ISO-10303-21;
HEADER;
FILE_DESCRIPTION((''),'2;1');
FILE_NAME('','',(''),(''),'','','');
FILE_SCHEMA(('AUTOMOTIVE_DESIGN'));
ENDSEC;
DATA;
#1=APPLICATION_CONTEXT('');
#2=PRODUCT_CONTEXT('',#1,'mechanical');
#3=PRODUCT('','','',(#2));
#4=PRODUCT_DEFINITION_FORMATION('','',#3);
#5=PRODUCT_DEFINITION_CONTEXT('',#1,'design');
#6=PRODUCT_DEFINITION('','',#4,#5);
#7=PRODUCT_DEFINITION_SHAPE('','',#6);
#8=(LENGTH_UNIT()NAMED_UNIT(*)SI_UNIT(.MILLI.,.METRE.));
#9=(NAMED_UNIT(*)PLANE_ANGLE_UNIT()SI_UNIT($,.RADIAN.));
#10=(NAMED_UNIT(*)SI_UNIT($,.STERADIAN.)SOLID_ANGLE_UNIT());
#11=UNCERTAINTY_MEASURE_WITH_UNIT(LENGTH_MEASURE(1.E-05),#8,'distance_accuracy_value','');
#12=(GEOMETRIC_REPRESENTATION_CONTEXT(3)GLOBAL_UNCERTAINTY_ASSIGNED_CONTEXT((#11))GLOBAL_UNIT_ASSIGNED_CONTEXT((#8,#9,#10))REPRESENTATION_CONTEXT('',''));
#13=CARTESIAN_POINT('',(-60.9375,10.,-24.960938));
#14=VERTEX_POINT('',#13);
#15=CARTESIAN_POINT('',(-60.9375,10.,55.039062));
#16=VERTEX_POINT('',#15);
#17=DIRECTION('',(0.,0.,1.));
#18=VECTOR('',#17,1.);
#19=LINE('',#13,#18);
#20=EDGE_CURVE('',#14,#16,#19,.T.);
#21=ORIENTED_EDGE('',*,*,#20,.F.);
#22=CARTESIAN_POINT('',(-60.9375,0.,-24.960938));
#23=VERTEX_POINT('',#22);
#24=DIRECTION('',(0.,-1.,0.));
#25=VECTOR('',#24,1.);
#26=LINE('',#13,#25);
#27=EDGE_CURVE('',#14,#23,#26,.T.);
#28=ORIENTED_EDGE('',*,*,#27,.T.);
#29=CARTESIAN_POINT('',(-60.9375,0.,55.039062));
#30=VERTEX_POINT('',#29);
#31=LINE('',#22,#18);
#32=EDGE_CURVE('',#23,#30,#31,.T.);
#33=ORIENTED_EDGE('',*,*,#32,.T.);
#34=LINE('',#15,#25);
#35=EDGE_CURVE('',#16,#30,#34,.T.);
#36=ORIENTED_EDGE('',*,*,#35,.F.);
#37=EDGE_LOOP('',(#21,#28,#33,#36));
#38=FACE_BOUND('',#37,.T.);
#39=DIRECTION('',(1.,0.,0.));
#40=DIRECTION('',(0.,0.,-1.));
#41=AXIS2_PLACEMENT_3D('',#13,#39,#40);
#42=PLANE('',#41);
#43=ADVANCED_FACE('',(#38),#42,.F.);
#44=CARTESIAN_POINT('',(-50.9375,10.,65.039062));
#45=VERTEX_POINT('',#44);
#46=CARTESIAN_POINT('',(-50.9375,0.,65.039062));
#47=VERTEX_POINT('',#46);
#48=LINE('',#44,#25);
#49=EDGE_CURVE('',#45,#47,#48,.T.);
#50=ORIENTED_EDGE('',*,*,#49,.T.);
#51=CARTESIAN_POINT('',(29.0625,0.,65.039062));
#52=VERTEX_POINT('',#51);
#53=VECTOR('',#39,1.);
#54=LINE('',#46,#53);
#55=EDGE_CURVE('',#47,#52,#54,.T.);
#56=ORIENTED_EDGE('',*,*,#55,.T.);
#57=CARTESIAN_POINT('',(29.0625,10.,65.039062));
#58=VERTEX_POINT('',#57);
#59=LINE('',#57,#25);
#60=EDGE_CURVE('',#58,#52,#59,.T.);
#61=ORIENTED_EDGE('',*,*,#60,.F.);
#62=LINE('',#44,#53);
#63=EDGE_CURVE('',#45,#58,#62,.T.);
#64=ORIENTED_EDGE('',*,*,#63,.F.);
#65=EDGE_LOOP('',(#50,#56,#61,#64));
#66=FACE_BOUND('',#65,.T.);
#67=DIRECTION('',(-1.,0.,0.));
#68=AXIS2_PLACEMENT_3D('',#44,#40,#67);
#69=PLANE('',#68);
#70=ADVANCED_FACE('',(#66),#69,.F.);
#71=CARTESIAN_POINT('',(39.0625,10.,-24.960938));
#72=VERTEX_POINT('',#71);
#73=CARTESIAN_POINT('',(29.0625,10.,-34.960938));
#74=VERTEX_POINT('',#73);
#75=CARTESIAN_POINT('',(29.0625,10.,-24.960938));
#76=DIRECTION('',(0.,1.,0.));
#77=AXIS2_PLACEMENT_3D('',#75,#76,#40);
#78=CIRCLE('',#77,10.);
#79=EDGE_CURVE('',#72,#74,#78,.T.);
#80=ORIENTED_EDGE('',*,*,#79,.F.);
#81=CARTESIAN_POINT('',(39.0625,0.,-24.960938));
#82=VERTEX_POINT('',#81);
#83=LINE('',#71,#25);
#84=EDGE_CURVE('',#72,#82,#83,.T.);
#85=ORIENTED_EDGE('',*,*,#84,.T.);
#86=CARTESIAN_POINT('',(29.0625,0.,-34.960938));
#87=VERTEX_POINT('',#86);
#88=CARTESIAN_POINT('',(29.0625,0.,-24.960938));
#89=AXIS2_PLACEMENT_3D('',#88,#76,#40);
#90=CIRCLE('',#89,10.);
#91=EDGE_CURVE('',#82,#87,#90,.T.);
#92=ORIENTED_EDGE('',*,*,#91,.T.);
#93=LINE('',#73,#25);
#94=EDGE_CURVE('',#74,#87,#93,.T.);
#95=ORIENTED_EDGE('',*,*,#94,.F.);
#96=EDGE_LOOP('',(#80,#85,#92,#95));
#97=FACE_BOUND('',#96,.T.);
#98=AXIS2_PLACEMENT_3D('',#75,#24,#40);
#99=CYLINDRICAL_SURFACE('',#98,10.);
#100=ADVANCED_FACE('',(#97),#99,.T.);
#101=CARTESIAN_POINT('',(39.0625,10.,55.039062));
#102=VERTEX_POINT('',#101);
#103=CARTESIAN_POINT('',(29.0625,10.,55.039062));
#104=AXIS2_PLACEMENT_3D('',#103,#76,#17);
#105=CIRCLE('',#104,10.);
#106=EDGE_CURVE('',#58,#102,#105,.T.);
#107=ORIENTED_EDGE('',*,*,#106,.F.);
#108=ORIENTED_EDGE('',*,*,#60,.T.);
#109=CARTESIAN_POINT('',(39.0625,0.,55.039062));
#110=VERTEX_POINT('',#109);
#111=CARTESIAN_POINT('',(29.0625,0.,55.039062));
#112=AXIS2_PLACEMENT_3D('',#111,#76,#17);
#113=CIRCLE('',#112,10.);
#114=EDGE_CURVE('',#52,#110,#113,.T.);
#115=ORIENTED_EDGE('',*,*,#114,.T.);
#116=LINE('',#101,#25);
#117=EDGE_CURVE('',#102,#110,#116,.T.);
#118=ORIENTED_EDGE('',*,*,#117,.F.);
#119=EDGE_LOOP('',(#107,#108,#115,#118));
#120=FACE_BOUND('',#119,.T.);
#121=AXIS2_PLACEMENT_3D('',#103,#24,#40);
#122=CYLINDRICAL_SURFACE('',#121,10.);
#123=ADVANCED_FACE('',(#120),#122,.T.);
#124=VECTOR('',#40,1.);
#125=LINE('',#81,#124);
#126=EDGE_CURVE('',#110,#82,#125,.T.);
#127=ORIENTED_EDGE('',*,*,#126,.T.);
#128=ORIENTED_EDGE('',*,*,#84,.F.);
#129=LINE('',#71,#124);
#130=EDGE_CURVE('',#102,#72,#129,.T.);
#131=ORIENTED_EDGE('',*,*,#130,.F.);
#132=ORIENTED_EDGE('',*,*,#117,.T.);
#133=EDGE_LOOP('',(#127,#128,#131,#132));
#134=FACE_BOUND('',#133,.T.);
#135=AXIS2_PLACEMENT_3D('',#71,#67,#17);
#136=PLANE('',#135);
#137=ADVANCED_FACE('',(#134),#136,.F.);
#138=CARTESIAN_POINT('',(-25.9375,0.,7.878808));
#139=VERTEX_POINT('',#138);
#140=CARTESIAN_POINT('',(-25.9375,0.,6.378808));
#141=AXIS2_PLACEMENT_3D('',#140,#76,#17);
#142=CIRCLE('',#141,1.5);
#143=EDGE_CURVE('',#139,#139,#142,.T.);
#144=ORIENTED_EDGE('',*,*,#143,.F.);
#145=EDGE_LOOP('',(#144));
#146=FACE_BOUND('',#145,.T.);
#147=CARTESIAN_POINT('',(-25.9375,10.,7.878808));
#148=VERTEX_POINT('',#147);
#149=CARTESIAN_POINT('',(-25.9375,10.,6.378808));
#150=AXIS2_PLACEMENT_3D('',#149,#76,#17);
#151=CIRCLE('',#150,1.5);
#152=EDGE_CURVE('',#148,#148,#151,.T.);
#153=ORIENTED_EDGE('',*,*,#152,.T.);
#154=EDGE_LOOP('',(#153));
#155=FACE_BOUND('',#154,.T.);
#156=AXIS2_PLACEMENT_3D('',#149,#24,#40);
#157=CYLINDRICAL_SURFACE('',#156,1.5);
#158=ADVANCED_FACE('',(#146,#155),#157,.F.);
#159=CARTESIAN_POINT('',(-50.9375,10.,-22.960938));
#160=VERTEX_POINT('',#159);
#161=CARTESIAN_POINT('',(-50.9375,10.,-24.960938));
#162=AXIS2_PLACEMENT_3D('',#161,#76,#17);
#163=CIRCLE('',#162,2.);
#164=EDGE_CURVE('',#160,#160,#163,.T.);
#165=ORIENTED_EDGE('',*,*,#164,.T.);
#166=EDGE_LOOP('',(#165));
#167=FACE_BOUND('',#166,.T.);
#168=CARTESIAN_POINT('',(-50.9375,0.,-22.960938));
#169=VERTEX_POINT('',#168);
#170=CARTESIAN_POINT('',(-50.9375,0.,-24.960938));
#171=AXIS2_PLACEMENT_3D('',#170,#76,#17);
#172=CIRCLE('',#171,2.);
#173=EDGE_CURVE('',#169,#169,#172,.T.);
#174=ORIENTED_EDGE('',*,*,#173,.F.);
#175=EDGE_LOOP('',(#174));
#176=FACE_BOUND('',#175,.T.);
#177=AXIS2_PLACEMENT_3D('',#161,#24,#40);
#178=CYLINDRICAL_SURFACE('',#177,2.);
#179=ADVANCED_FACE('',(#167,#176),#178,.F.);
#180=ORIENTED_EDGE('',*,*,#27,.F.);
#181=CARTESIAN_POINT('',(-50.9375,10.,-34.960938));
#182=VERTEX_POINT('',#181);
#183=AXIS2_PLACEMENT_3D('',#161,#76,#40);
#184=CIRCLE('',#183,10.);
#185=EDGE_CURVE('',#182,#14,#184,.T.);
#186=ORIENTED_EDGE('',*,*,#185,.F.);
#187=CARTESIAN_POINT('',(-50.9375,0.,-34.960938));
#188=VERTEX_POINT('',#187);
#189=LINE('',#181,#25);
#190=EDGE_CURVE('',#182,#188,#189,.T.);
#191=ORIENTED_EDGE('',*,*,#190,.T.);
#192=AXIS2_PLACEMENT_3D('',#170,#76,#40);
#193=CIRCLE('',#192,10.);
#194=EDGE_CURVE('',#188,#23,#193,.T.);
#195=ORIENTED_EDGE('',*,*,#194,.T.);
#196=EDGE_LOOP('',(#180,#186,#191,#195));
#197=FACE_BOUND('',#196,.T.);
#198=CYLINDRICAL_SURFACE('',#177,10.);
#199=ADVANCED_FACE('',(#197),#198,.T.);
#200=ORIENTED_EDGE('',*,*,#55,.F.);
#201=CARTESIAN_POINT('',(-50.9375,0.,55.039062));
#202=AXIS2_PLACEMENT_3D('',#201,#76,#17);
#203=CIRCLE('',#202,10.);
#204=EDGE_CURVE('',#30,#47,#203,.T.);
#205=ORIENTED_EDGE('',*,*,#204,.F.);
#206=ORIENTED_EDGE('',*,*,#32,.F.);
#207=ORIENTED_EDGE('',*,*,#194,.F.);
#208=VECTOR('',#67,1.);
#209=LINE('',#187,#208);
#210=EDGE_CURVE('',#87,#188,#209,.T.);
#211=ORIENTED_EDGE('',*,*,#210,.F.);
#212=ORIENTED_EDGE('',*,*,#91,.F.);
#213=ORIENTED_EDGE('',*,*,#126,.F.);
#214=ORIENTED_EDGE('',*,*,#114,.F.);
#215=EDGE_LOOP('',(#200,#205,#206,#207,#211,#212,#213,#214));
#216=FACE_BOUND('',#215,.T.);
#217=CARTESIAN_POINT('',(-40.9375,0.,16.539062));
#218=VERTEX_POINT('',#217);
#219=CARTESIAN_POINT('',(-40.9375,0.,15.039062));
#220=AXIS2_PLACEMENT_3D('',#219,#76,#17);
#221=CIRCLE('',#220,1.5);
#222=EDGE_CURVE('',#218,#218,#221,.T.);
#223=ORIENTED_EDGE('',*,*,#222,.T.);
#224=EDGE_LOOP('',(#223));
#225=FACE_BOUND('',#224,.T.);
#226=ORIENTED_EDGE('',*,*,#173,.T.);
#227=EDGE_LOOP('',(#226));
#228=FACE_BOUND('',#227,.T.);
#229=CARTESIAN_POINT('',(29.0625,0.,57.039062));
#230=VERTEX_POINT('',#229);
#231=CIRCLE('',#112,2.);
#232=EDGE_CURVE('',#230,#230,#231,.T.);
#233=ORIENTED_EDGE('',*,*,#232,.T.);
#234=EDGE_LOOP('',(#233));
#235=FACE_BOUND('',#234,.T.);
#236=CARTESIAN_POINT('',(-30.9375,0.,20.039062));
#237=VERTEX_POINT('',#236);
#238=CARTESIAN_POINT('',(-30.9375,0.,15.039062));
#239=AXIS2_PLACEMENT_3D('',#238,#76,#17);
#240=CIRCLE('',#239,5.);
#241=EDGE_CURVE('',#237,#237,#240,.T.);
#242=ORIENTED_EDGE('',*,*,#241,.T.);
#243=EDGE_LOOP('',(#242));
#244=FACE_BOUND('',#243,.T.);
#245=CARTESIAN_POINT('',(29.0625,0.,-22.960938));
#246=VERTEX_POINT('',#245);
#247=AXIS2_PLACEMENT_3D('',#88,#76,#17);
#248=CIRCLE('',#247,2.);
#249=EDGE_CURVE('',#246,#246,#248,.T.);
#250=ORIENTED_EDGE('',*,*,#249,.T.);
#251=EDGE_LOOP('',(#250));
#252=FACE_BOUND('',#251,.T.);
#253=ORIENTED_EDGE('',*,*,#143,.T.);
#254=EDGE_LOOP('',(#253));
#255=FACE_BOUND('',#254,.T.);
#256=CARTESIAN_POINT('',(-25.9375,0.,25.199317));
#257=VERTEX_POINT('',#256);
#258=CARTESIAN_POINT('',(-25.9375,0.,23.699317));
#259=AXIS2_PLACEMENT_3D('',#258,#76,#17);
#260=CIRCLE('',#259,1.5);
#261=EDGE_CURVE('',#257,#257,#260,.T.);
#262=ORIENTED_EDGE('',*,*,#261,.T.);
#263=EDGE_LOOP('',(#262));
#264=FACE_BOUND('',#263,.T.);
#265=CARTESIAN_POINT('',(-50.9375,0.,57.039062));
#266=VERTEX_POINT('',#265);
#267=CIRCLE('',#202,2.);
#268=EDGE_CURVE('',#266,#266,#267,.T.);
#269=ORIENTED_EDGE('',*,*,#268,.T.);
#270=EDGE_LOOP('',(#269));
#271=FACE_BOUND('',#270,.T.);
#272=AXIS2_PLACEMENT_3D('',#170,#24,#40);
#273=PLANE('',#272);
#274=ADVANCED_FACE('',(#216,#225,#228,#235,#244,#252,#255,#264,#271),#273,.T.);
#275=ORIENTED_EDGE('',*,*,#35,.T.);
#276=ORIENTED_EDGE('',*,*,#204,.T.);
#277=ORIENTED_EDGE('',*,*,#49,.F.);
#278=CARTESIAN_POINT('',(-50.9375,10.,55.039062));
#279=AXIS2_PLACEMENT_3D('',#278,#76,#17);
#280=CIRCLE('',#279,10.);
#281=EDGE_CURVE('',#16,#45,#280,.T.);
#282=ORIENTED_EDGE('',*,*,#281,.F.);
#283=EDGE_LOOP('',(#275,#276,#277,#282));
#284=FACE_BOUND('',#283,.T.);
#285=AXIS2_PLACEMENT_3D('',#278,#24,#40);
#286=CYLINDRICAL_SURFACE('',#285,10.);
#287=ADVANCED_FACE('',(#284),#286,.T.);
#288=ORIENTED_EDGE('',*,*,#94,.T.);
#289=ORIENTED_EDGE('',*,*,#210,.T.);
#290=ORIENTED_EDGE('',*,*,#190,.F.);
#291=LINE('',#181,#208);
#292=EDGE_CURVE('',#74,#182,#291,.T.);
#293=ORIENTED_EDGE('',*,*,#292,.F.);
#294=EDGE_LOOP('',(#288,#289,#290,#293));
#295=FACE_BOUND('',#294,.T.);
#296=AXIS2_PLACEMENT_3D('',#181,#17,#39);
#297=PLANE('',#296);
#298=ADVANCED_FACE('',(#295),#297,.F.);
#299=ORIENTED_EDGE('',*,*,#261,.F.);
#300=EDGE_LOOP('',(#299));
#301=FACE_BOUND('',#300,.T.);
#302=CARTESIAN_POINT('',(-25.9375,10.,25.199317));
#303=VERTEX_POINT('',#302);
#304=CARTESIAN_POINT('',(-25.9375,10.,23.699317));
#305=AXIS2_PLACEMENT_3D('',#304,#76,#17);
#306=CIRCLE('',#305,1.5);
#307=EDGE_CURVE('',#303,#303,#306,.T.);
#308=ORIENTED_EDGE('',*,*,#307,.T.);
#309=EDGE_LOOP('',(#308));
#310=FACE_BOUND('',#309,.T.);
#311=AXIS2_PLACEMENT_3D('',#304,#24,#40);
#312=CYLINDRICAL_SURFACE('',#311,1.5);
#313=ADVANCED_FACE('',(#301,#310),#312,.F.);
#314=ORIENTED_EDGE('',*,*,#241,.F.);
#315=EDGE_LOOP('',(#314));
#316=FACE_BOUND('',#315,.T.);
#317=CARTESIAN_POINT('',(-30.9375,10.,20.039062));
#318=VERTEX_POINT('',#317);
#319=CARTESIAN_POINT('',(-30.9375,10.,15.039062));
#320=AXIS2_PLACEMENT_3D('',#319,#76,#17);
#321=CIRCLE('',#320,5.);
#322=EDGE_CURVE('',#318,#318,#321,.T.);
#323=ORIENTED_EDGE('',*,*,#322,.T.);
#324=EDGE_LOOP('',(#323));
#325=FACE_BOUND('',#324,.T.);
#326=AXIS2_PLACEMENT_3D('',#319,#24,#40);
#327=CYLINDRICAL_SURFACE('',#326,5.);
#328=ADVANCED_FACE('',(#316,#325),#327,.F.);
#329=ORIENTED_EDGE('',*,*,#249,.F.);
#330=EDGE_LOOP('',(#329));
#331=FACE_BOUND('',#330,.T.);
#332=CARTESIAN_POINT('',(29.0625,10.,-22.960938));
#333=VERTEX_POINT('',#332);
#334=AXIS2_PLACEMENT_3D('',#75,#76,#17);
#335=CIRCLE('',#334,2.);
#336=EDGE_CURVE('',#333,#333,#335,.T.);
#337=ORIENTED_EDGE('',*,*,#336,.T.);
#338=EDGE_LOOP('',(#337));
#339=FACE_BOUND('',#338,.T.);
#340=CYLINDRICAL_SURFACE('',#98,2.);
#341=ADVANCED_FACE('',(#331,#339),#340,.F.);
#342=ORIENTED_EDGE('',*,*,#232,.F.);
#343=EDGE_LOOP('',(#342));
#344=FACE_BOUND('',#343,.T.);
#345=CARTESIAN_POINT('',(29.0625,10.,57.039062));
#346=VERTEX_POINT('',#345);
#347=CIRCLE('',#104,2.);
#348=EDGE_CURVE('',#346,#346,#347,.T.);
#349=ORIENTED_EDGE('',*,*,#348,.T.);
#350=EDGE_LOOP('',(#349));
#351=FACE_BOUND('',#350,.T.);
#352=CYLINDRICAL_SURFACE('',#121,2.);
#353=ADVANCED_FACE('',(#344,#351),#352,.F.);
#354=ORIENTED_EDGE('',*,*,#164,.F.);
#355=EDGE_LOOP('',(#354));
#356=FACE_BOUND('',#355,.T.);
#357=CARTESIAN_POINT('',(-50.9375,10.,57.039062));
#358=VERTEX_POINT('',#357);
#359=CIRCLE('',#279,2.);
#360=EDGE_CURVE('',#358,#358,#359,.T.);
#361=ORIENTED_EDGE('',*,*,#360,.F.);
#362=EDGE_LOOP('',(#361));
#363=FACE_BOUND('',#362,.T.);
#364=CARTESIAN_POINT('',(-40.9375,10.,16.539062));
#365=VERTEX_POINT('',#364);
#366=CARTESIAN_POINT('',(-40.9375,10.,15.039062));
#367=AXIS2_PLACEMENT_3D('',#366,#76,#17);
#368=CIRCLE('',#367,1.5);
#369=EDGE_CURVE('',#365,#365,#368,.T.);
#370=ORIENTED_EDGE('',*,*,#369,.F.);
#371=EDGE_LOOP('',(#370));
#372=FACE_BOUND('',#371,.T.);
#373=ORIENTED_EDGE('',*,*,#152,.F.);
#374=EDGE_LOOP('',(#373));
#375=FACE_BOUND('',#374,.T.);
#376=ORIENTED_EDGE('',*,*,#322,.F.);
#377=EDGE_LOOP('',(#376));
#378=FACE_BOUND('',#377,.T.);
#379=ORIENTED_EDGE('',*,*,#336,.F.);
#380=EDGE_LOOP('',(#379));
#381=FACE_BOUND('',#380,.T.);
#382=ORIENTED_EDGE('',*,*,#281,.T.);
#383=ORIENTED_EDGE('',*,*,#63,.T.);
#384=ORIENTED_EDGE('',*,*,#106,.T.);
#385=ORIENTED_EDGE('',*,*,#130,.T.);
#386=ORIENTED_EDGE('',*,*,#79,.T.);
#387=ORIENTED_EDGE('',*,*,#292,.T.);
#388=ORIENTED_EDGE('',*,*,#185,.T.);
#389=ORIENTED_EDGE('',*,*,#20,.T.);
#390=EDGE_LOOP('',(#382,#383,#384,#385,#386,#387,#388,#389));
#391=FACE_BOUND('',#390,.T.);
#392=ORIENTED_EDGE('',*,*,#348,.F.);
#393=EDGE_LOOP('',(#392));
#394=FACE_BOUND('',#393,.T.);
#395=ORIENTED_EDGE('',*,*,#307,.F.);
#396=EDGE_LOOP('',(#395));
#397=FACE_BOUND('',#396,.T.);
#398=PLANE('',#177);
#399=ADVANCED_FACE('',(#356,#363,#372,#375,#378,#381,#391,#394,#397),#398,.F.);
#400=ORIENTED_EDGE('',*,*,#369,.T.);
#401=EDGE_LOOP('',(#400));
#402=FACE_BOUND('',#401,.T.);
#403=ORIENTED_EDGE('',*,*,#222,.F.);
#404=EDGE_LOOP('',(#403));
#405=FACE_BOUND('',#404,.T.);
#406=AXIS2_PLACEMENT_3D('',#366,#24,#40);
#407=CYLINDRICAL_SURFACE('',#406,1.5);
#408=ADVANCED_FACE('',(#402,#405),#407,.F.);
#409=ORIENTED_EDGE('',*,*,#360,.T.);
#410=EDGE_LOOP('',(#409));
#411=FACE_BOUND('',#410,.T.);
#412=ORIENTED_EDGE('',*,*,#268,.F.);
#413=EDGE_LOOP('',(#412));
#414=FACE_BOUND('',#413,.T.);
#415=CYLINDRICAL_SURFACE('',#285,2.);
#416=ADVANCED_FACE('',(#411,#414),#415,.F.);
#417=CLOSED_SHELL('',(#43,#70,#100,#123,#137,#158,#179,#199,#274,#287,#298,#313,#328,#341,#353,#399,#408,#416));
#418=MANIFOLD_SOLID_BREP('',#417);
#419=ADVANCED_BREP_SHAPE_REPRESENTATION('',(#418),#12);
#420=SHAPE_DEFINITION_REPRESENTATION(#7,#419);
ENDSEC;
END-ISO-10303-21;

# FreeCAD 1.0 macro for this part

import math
import FreeCAD as App
import Part
import Sketcher
from FreeCAD import Vector
Q = App.Units.Quantity

doc = App.newDocument("Part")
body = doc.addObject("PartDesign::Body", "Body")

# Sketch on XZ plane
sketch1 = doc.addObject("Sketcher::SketchObject", "Sketch")
body.addObject(sketch1)
sketch1.AttachmentSupport = (doc.XZ_Plane, [""])
sketch1.MapMode = "FlatFace"
sketch1.addGeometry(Part.LineSegment(Vector(29.1, -35, 0), Vector(-50.9, -35, 0)), False)
sketch1.addGeometry(Part.ArcOfCircle(Part.Circle(Vector(-50.9, -25, 0), Vector(0, 0, 1), 10), math.radians(180), math.radians(270)), False)
sketch1.addGeometry(Part.LineSegment(Vector(-60.9, -25, 0), Vector(-60.9, 55, 0)), False)
sketch1.addGeometry(Part.ArcOfCircle(Part.Circle(Vector(-50.9, 55, 0), Vector(0, 0, 1), 10), math.radians(90), math.radians(180)), False)
sketch1.addGeometry(Part.LineSegment(Vector(-50.9, 65, 0), Vector(29.1, 65, 0)), False)
sketch1.addGeometry(Part.ArcOfCircle(Part.Circle(Vector(29.1, 55, 0), Vector(0, 0, 1), 10), math.radians(0), math.radians(90)), False)
sketch1.addGeometry(Part.LineSegment(Vector(39.1, 55, 0), Vector(39.1, -25, 0)), False)
sketch1.addGeometry(Part.ArcOfCircle(Part.Circle(Vector(29.1, -25, 0), Vector(0, 0, 1), 10), math.radians(-90), math.radians(0)), False)
sketch1.addGeometry(Part.Circle(Vector(29.1, 55, 0), Vector(0, 0, 1), 2), False)
sketch1.addGeometry(Part.Circle(Vector(-50.9, 55, 0), Vector(0, 0, 1), 2), False)
sketch1.addGeometry(Part.Circle(Vector(-25.9, 23.7, 0), Vector(0, 0, 1), 1.5), False)
sketch1.addGeometry(Part.Circle(Vector(29.1, -25, 0), Vector(0, 0, 1), 2), False)
sketch1.addGeometry(Part.Circle(Vector(-30.9, 15, 0), Vector(0, 0, 1), 5), False)
sketch1.addGeometry(Part.Circle(Vector(-25.9, 6.4, 0), Vector(0, 0, 1), 1.5), False)
sketch1.addGeometry(Part.Circle(Vector(-40.9, 15, 0), Vector(0, 0, 1), 1.5), False)
sketch1.addGeometry(Part.Circle(Vector(-50.9, -25, 0), Vector(0, 0, 1), 2), False)
sketch1.addConstraint(Sketcher.Constraint("Tangent", 0, 2, 1, 2))
sketch1.addConstraint(Sketcher.Constraint("Tangent", 1, 1, 2, 1))
sketch1.addConstraint(Sketcher.Constraint("Tangent", 2, 2, 3, 2))
sketch1.addConstraint(Sketcher.Constraint("Tangent", 3, 1, 4, 1))
sketch1.addConstraint(Sketcher.Constraint("Tangent", 4, 2, 5, 2))
sketch1.addConstraint(Sketcher.Constraint("Tangent", 5, 1, 6, 1))
sketch1.addConstraint(Sketcher.Constraint("Tangent", 6, 2, 7, 2))
sketch1.addConstraint(Sketcher.Constraint("Tangent", 7, 1, 0, 1))
sketch1.addConstraint(Sketcher.Constraint("Horizontal", 0))
sketch1.addConstraint(Sketcher.Constraint("Vertical", 2))
sketch1.addConstraint(Sketcher.Constraint("Horizontal", 4))
sketch1.addConstraint(Sketcher.Constraint("Vertical", 6))
sketch1.addConstraint(Sketcher.Constraint("Coincident", 8, 3, 5, 3))
sketch1.addConstraint(Sketcher.Constraint("Coincident", 9, 3, 3, 3))
sketch1.addConstraint(Sketcher.Constraint("Coincident", 11, 3, 7, 3))
sketch1.addConstraint(Sketcher.Constraint("Coincident", 15, 3, 1, 3))
sketch1.addConstraint(Sketcher.Constraint("Equal", 1, 3))
sketch1.addConstraint(Sketcher.Constraint("Equal", 3, 5))
sketch1.addConstraint(Sketcher.Constraint("Equal", 5, 7))
sketch1.addConstraint(Sketcher.Constraint("Equal", 8, 9))
sketch1.addConstraint(Sketcher.Constraint("Equal", 9, 11))
sketch1.addConstraint(Sketcher.Constraint("Equal", 10, 13))
sketch1.addConstraint(Sketcher.Constraint("Equal", 13, 14))
sketch1.addConstraint(Sketcher.Constraint("Equal", 11, 15))
sketch1.addConstraint(Sketcher.Constraint("Horizontal", 12, 3, 14, 3))
sketch1.addConstraint(Sketcher.Constraint("Vertical", 10, 3, 13, 3))
sketch1.addConstraint(Sketcher.Constraint("Equal", 4, 2))
sketch1.addConstraint(Sketcher.Constraint("Diameter", 8, Q("4 mm")))
sketch1.addConstraint(Sketcher.Constraint("Diameter", 10, Q("3 mm")))
sketch1.addConstraint(Sketcher.Constraint("Diameter", 12, Q("10 mm")))
sketch1.addConstraint(Sketcher.Constraint("Radius", 1, Q("10 mm")))
sketch1.addConstraint(Sketcher.Constraint("DistanceX", 0, 2, 0, 1, Q("80 mm")))
sketch1.addConstraint(Sketcher.Constraint("DistanceX", 3, 3, 10, 3, Q("25 mm")))
sketch1.addConstraint(Sketcher.Constraint("DistanceX", 12, 3, 10, 3, Q("5 mm")))
sketch1.addConstraint(Sketcher.Constraint("DistanceY", 1, 3, 12, 3, Q("40 mm")))
sketch1.addConstraint(Sketcher.Constraint("DistanceX", 14, 3, 12, 3, Q("10 mm")))
sketch1.addConstraint(Sketcher.Constraint("DistanceX", 1, 3, -1, 1, Q("50.9375 mm")))
sketch1.addConstraint(Sketcher.Constraint("DistanceY", -1, 1, 13, 3, Q("6.378808 mm")))
sketch1.addConstraint(Sketcher.Constraint("DistanceY", 13, 3, 10, 3, Q("17.320508 mm")))
sketch1.addConstraint(Sketcher.Constraint("DistanceY", 1, 3, -1, 1, Q("24.960938 mm")))
pad1 = doc.addObject("PartDesign::Pad", "Pad")
body.addObject(pad1)
pad1.Profile = sketch1
pad1.Length = 10
pad1.Reversed = True

doc.recompute()
